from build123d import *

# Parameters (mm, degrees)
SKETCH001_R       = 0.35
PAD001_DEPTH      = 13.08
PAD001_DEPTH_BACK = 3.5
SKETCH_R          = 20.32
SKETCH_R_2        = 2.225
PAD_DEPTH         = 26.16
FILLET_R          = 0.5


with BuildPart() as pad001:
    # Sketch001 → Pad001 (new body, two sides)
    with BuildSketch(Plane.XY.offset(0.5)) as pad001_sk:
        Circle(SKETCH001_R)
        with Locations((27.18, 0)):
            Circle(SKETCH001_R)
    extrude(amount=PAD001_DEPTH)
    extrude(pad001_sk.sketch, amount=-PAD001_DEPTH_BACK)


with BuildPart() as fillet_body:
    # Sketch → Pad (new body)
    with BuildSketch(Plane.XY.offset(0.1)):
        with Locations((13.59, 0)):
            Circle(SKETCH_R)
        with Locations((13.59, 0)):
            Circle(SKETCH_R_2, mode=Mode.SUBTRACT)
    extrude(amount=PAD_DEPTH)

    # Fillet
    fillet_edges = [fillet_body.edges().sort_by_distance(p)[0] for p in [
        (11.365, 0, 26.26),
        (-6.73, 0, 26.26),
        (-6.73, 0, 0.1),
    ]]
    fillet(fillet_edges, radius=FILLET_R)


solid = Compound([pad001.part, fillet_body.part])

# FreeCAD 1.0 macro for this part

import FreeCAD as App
import Part
import Sketcher
from FreeCAD import Vector
Q = App.Units.Quantity


def edges_at(feature, points):
    """Names of the edges that pass closest to the given points."""
    edges = feature.Shape.Edges
    near = lambda p: min(range(len(edges)), key=lambda i: edges[i].distToShape(Part.Vertex(*p))[0])
    return sorted({f"Edge{near(p) + 1}" for p in points})

doc = App.newDocument("Part")
body = doc.addObject("PartDesign::Body", "Body")
body.AllowCompound = True

# Sketch on XY plane
sketch1 = body.newObject("Sketcher::SketchObject", "Sketch")
sketch1.AttachmentSupport = (doc.getObject("XY_Plane"), [""])
sketch1.MapMode = "FlatFace"
sketch1.AttachmentOffset = App.Placement(Vector(0, 0, 0.5), App.Rotation())
sketch1.addGeometry([
    Part.Circle(Vector(0, 0, 0), Vector(0, 0, 1), 0.35),
    Part.Circle(Vector(27.18, 0, 0), Vector(0, 0, 1), 0.35),
], False)
sketch1.addConstraint([
    Sketcher.Constraint("Coincident", 0, 3, -1, 1),
    Sketcher.Constraint("Equal", 0, 1),
    Sketcher.Constraint("PointOnObject", 1, 3, -1),
    Sketcher.Constraint("Diameter", 0, Q("0.7 mm")),
    Sketcher.Constraint("DistanceX", -1, 1, 1, 3, Q("27.18 mm")),
])
pad1 = body.newObject("PartDesign::Pad", "Pad")
pad1.Profile = sketch1
pad1.Type = "TwoLengths"
pad1.Length = 13.08
pad1.Length2 = 3.5
body2 = doc.addObject("PartDesign::Body", "Body001")

# Sketch on XY plane
sketch2 = body2.newObject("Sketcher::SketchObject", "Sketch001")
sketch2.AttachmentSupport = (doc.getObject("XY_Plane001"), [""])
sketch2.MapMode = "FlatFace"
sketch2.AttachmentOffset = App.Placement(Vector(0, 0, 0.1), App.Rotation())
sketch2.addGeometry([
    Part.Circle(Vector(13.6, 0, 0), Vector(0, 0, 1), 20.3),
    Part.Circle(Vector(13.6, 0, 0), Vector(0, 0, 1), 2.2),
], False)
sketch2.addConstraint([
    Sketcher.Constraint("Coincident", 1, 3, 0, 3),
    Sketcher.Constraint("PointOnObject", 0, 3, -1),
    Sketcher.Constraint("Diameter", 0, Q("40.64 mm")),
    Sketcher.Constraint("Diameter", 1, Q("4.45 mm")),
    Sketcher.Constraint("DistanceX", -1, 1, 0, 3, Q("13.59 mm")),
])
pad2 = body2.newObject("PartDesign::Pad", "Pad001")
pad2.Profile = sketch2
pad2.Length = 26.16
doc.recompute()

fillet = body2.newObject("PartDesign::Fillet", "Fillet")
fillet.Base = (pad2, edges_at(pad2, [(11.365, 0, 26.26), (-6.73, 0, 26.26), (-6.73, 0, 0.1)]))
fillet.Radius = 0.5

doc.recompute()
